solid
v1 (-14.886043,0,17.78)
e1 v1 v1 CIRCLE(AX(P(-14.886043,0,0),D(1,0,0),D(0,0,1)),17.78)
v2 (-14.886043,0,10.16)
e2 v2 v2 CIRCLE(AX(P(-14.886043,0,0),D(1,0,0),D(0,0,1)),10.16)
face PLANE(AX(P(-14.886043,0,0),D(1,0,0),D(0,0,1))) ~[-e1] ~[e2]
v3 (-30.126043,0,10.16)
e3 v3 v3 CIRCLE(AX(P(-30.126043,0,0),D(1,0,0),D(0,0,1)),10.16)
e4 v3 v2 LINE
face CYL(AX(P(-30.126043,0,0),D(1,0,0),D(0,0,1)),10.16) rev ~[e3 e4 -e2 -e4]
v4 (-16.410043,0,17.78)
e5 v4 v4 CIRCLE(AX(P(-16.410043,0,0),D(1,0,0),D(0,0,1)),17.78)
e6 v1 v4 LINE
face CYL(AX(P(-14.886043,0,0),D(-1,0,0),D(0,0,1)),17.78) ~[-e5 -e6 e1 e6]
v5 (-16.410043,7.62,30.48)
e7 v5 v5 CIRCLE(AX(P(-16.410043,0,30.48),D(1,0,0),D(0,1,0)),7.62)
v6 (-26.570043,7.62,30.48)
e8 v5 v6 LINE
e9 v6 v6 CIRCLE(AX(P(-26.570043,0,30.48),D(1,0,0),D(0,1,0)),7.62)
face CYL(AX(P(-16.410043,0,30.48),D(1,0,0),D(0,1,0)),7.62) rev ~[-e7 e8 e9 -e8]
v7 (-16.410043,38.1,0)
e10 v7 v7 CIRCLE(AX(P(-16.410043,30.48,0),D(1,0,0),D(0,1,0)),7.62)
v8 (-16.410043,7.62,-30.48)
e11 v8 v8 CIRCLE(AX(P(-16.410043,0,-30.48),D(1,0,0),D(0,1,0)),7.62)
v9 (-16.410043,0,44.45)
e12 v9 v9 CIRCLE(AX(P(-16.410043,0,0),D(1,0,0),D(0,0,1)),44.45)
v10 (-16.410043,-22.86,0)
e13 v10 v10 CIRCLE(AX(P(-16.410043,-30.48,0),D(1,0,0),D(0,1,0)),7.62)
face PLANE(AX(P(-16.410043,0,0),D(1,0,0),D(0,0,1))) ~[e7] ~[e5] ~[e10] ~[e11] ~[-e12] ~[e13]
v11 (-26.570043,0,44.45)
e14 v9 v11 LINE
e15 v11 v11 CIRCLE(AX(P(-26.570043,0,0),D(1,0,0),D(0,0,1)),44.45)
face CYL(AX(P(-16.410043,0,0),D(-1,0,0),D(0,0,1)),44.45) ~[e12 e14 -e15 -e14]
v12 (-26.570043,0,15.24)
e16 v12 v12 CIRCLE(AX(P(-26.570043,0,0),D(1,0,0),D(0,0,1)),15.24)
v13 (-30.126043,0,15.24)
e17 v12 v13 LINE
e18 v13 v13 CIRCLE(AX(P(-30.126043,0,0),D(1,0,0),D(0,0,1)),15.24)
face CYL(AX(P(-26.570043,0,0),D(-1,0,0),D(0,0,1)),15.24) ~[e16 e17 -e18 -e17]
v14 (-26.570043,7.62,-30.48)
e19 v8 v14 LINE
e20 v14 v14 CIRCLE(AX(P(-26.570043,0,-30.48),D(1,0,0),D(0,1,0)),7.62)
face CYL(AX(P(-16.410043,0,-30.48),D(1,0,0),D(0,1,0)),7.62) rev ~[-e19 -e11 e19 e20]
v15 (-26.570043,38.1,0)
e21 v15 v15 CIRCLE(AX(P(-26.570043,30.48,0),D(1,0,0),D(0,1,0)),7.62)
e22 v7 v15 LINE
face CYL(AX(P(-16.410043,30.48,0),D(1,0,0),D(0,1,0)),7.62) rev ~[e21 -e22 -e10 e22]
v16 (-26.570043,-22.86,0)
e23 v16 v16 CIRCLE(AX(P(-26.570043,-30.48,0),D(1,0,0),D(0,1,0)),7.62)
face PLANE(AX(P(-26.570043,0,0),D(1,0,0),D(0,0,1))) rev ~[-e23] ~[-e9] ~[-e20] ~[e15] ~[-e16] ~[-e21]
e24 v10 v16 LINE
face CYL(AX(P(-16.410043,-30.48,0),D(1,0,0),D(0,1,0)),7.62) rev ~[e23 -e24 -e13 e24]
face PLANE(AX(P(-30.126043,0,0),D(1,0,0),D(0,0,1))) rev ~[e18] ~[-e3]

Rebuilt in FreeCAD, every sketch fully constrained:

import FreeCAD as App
import Part
import Sketcher

V = App.Vector
Q = App.Units.Quantity

doc = App.newDocument("Part")
body = doc.addObject("PartDesign::Body", "Body")

# Sketch on XZ plane
sketch1 = doc.addObject("Sketcher::SketchObject", "Sketch")
body.addObject(sketch1)
sketch1.AttachmentSupport = (doc.XZ_Plane, [""])
sketch1.MapMode = "FlatFace"
sketch1.addGeometry([
    Part.LineSegment(V(-30.1, 15.2, 0), V(-30.1, 10.2, 0)),  # 0
    Part.LineSegment(V(-30.1, 10.2, 0), V(-14.9, 10.2, 0)),  # 1
    Part.LineSegment(V(-14.9, 10.2, 0), V(-14.9, 17.8, 0)),  # 2
    Part.LineSegment(V(-14.9, 17.8, 0), V(-16.4, 17.8, 0)),  # 3
    Part.LineSegment(V(-16.4, 17.8, 0), V(-16.4, 44.5, 0)),  # 4
    Part.LineSegment(V(-16.4, 44.5, 0), V(-26.6, 44.5, 0)),  # 5
    Part.LineSegment(V(-26.6, 44.5, 0), V(-26.6, 15.2, 0)),  # 6
    Part.LineSegment(V(-26.6, 15.2, 0), V(-30.1, 15.2, 0)),  # 7
], False)
sketch1.addConstraint([
    Sketcher.Constraint("Coincident", 0, 2, 1, 1),
    Sketcher.Constraint("Coincident", 1, 2, 2, 1),
    Sketcher.Constraint("Coincident", 2, 2, 3, 1),
    Sketcher.Constraint("Coincident", 3, 2, 4, 1),
    Sketcher.Constraint("Coincident", 4, 2, 5, 1),
    Sketcher.Constraint("Coincident", 5, 2, 6, 1),
    Sketcher.Constraint("Coincident", 6, 2, 7, 1),
    Sketcher.Constraint("Coincident", 7, 2, 0, 1),
    Sketcher.Constraint("Vertical", 0),
    Sketcher.Constraint("Horizontal", 1),
    Sketcher.Constraint("Vertical", 2),
    Sketcher.Constraint("Horizontal", 3),
    Sketcher.Constraint("Vertical", 4),
    Sketcher.Constraint("Horizontal", 5),
    Sketcher.Constraint("Vertical", 6),
    Sketcher.Constraint("Horizontal", 7),
    Sketcher.Constraint("DistanceX", 1, 1, 1, 2, Q("0.6 in")),
    Sketcher.Constraint("DistanceX", 5, 2, 5, 1, Q("0.4 in")),
    Sketcher.Constraint("DistanceY", 0, 2, 0, 1, Q("0.2 in")),
    Sketcher.Constraint("DistanceY", 2, 1, 2, 2, Q("0.3 in")),
    Sketcher.Constraint("DistanceX", 3, 2, 3, 1, Q("0.06 in")),
    Sketcher.Constraint("DistanceY", 4, 1, 4, 2, Q("1.05 in")),
    Sketcher.Constraint("DistanceY", -1, 1, 0, 2, Q("0.4 in")),
    Sketcher.Constraint("DistanceX", 0, 2, -1, 1, 30.126043),
])
revolution = doc.addObject("PartDesign::Revolution", "Revolution")
body.addObject(revolution)
revolution.Profile = sketch1
revolution.ReferenceAxis = (sketch1, ["H_Axis"])
revolution.Angle = 360

# Sketch on YZ plane
sketch2 = doc.addObject("Sketcher::SketchObject", "Sketch001")
body.addObject(sketch2)
sketch2.AttachmentSupport = (doc.YZ_Plane, [""])
sketch2.MapMode = "FlatFace"
sketch2.AttachmentOffset = App.Placement(V(0, 0, -16.410043), App.Rotation())
sketch2.addGeometry([
    Part.Circle(V(0, 30, 0), V(0, 0, 1), 8),
    Part.Circle(V(-30, 0, 0), V(0, 0, 1), 8),
    Part.Circle(V(0, -30, 0), V(0, 0, 1), 8),
    Part.Circle(V(30, 0, 0), V(0, 0, 1), 8),
], False)
sketch2.addConstraint([
    Sketcher.Constraint("Equal", 0, 1),
    Sketcher.Constraint("Equal", 1, 2),
    Sketcher.Constraint("Equal", 2, 3),
    Sketcher.Constraint("Symmetric", 0, 3, 2, 3, -1, 1),
    Sketcher.Constraint("Symmetric", 1, 3, 3, 3, -1, 1),
    Sketcher.Constraint("PointOnObject", 0, 3, -2),
    Sketcher.Constraint("PointOnObject", 1, 3, -1),
    Sketcher.Constraint("Diameter", 0, Q("0.6 in")),
    Sketcher.Constraint("DistanceY", -1, 1, 0, 3, Q("1.2 in")),
    Sketcher.Constraint("DistanceX", 1, 3, -1, 1, Q("1.2 in")),
])
pocket1 = doc.addObject("PartDesign::Pocket", "Pocket")
body.addObject(pocket1)
pocket1.Profile = sketch2
pocket1.Type = "ThroughAll"

doc.recompute()
